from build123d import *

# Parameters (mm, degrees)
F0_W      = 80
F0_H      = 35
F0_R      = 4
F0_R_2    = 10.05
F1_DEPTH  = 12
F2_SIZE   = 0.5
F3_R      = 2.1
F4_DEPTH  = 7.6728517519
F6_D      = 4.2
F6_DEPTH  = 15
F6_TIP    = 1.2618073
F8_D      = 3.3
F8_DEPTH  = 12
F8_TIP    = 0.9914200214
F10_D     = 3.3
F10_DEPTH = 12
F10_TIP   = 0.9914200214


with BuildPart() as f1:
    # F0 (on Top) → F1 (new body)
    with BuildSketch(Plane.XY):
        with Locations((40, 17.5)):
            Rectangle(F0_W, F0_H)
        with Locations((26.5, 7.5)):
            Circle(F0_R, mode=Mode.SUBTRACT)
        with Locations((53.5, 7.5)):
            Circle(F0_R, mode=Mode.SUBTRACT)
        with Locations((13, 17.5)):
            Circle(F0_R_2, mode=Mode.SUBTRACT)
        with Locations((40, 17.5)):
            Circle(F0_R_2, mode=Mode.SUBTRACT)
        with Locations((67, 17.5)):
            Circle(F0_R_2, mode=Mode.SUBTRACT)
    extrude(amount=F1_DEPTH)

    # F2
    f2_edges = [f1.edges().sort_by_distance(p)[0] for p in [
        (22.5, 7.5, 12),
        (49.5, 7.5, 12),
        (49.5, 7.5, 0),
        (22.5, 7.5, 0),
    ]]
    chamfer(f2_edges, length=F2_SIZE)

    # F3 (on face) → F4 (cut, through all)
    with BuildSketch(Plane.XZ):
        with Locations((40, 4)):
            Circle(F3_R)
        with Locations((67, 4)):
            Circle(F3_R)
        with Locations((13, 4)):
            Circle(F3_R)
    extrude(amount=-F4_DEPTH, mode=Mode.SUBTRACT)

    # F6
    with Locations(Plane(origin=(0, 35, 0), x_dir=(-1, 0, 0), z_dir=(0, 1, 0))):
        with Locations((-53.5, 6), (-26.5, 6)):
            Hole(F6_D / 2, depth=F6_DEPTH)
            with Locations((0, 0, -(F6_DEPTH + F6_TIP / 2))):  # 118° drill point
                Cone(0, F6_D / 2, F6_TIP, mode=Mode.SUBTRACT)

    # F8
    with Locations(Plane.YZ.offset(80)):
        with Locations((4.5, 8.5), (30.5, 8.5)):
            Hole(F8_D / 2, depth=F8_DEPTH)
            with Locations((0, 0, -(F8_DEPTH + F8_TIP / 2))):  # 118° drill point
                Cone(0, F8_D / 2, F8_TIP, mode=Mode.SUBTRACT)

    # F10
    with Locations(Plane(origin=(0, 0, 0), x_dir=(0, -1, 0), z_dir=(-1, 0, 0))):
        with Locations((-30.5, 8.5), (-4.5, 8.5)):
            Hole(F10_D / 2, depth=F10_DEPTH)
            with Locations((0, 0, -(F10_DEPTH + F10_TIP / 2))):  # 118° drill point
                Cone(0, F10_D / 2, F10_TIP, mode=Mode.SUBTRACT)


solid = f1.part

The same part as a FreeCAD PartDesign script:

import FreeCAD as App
import Part
import Sketcher


def edges_at(feature, points):
    """Names of the edges that pass closest to the given points."""
    edges = feature.Shape.Edges
    near = lambda p: min(range(len(edges)), key=lambda i: edges[i].distToShape(Part.Vertex(*p))[0])
    return sorted({f"Edge{near(p) + 1}" for p in points})

doc = App.newDocument("Part")
body = doc.addObject("PartDesign::Body", "Body")

# Sketch on XY plane
sketch1 = doc.addObject("Sketcher::SketchObject", "Sketch")
body.addObject(sketch1)
sketch1.AttachmentSupport = (doc.XY_Plane, [""])
sketch1.MapMode = "FlatFace"
sketch1.addGeometry(Part.LineSegment(App.Vector(0, 35, 0), App.Vector(0, 0, 0)), False)
sketch1.addGeometry(Part.LineSegment(App.Vector(0, 0, 0), App.Vector(80, 0, 0)), False)
sketch1.addGeometry(Part.LineSegment(App.Vector(80, 0, 0), App.Vector(80, 35, 0)), False)
sketch1.addGeometry(Part.LineSegment(App.Vector(80, 35, 0), App.Vector(0, 35, 0)), False)
sketch1.addGeometry(Part.Circle(App.Vector(26.5, 7.5, 0), App.Vector(0, 0, 1), 4), False)
sketch1.addGeometry(Part.Circle(App.Vector(53.5, 7.5, 0), App.Vector(0, 0, 1), 4), False)
sketch1.addGeometry(Part.Circle(App.Vector(13, 17.5, 0), App.Vector(0, 0, 1), 10.1), False)
sketch1.addGeometry(Part.Circle(App.Vector(40, 17.5, 0), App.Vector(0, 0, 1), 10.1), False)
sketch1.addGeometry(Part.Circle(App.Vector(67, 17.5, 0), App.Vector(0, 0, 1), 10.1), False)
sketch1.addConstraint(Sketcher.Constraint("Coincident", 0, 2, 1, 1))
sketch1.addConstraint(Sketcher.Constraint("Coincident", 1, 2, 2, 1))
sketch1.addConstraint(Sketcher.Constraint("Coincident", 2, 2, 3, 1))
sketch1.addConstraint(Sketcher.Constraint("Coincident", 3, 2, 0, 1))
sketch1.addConstraint(Sketcher.Constraint("Vertical", 0))
sketch1.addConstraint(Sketcher.Constraint("Horizontal", 1))
sketch1.addConstraint(Sketcher.Constraint("Vertical", 2))
sketch1.addConstraint(Sketcher.Constraint("Horizontal", 3))
sketch1.addConstraint(Sketcher.Constraint("Coincident", 0, 2, -1, 1))
sketch1.addConstraint(Sketcher.Constraint("Equal", 4, 5))
sketch1.addConstraint(Sketcher.Constraint("Equal", 6, 7))
sketch1.addConstraint(Sketcher.Constraint("Equal", 7, 8))
sketch1.addConstraint(Sketcher.Constraint("Horizontal", 4, 3, 5, 3))
sketch1.addConstraint(Sketcher.Constraint("Horizontal", 6, 3, 7, 3))
sketch1.addConstraint(Sketcher.Constraint("Horizontal", 7, 3, 8, 3))
sketch1.addConstraint(Sketcher.Constraint("Diameter", 4, 8.0))
sketch1.addConstraint(Sketcher.Constraint("Diameter", 6, 20.1))
sketch1.addConstraint(Sketcher.Constraint("DistanceX", 1, 1, 1, 2, 80.0))
sketch1.addConstraint(Sketcher.Constraint("DistanceY", 0, 2, 0, 1, 35.0))
sketch1.addConstraint(Sketcher.Constraint("DistanceX", -1, 1, 6, 3, 13.0))
sketch1.addConstraint(Sketcher.Constraint("DistanceX", -1, 1, 7, 3, 40.0))
sketch1.addConstraint(Sketcher.Constraint("DistanceX", -1, 1, 8, 3, 67.0))
sketch1.addConstraint(Sketcher.Constraint("DistanceX", 4, 3, 5, 3, 27.0))
sketch1.addConstraint(Sketcher.Constraint("DistanceY", 4, 3, 6, 3, 10.0))
sketch1.addConstraint(Sketcher.Constraint("DistanceX", -1, 1, 4, 3, 26.5))
sketch1.addConstraint(Sketcher.Constraint("DistanceY", -1, 1, 4, 3, 7.5))
pad1 = doc.addObject("PartDesign::Pad", "Pad")
body.addObject(pad1)
pad1.Profile = sketch1
pad1.Length = 12
doc.recompute()

chamfer = doc.addObject("PartDesign::Chamfer", "Chamfer")
body.addObject(chamfer)
chamfer.Base = (pad1, edges_at(pad1, [
    (22.5, 7.5, 12),
    (49.5, 7.5, 12),
    (49.5, 7.5, 0),
    (22.5, 7.5, 0),
]))
chamfer.Size = 0.5

# Sketch on XZ plane
sketch2 = doc.addObject("Sketcher::SketchObject", "Sketch001")
body.addObject(sketch2)
sketch2.AttachmentSupport = (doc.XZ_Plane, [""])
sketch2.MapMode = "FlatFace"
sketch2.addGeometry(Part.Circle(App.Vector(40, 4, 0), App.Vector(0, 0, 1), 2.1), False)
sketch2.addGeometry(Part.Circle(App.Vector(67, 4, 0), App.Vector(0, 0, 1), 2.1), False)
sketch2.addGeometry(Part.Circle(App.Vector(13, 4, 0), App.Vector(0, 0, 1), 2.1), False)
sketch2.addConstraint(Sketcher.Constraint("Equal", 0, 1))
sketch2.addConstraint(Sketcher.Constraint("Equal", 1, 2))
sketch2.addConstraint(Sketcher.Constraint("Horizontal", 0, 3, 1, 3))
sketch2.addConstraint(Sketcher.Constraint("Horizontal", 1, 3, 2, 3))
sketch2.addConstraint(Sketcher.Constraint("Diameter", 0, 4.2))
sketch2.addConstraint(Sketcher.Constraint("DistanceX", -1, 1, 0, 3, 40.0))
sketch2.addConstraint(Sketcher.Constraint("DistanceY", -1, 1, 0, 3, 4.0))
sketch2.addConstraint(Sketcher.Constraint("DistanceX", -1, 1, 1, 3, 67.0))
sketch2.addConstraint(Sketcher.Constraint("DistanceX", -1, 1, 2, 3, 13.0))
pocket1 = doc.addObject("PartDesign::Pocket", "Pocket")
body.addObject(pocket1)
pocket1.Profile = sketch2
pocket1.Length = 7.672852

# Sketch on XZ plane
sketch3 = doc.addObject("Sketcher::SketchObject", "Sketch002")
body.addObject(sketch3)
sketch3.AttachmentSupport = (doc.XZ_Plane, [""])
sketch3.MapMode = "FlatFace"
sketch3.AttachmentOffset = App.Placement(App.Vector(0, 0, -35), App.Rotation())
sketch3.addGeometry(Part.Circle(App.Vector(53.5, 6, 0), App.Vector(0, 0, 1), 2.1), False)
sketch3.addGeometry(Part.Circle(App.Vector(26.5, 6, 0), App.Vector(0, 0, 1), 2.1), False)
sketch3.addConstraint(Sketcher.Constraint("Equal", 0, 1))
sketch3.addConstraint(Sketcher.Constraint("Horizontal", 0, 3, 1, 3))
sketch3.addConstraint(Sketcher.Constraint("Diameter", 0, 4.2))
sketch3.addConstraint(Sketcher.Constraint("DistanceY", -1, 1, 0, 3, 6.0))
sketch3.addConstraint(Sketcher.Constraint("DistanceX", 1, 3, 0, 3, 27.0))
sketch3.addConstraint(Sketcher.Constraint("DistanceX", -1, 1, 0, 3, 53.5))
doc.recompute()
hole = doc.addObject("PartDesign::Hole", "Hole")
body.addObject(hole)
hole.Profile = sketch3
hole.ThreadType = "None"
hole.Diameter = 4.2
hole.DepthType = "Dimension"
hole.Depth = 15
hole.DrillPoint = "Angled"
hole.DrillPointAngle = 118
hole.Reversed = True

# Sketch on YZ plane
sketch4 = doc.addObject("Sketcher::SketchObject", "Sketch003")
body.addObject(sketch4)
sketch4.AttachmentSupport = (doc.YZ_Plane, [""])
sketch4.MapMode = "FlatFace"
sketch4.AttachmentOffset = App.Placement(App.Vector(0, 0, 80), App.Rotation())
sketch4.addGeometry(Part.Circle(App.Vector(4.5, 8.5, 0), App.Vector(0, 0, 1), 1.6), False)
sketch4.addGeometry(Part.Circle(App.Vector(30.5, 8.5, 0), App.Vector(0, 0, 1), 1.6), False)
sketch4.addConstraint(Sketcher.Constraint("Equal", 0, 1))
sketch4.addConstraint(Sketcher.Constraint("Horizontal", 0, 3, 1, 3))
sketch4.addConstraint(Sketcher.Constraint("Diameter", 0, 3.3))
sketch4.addConstraint(Sketcher.Constraint("DistanceX", 0, 3, 1, 3, 26.0))
sketch4.addConstraint(Sketcher.Constraint("DistanceX", -1, 1, 0, 3, 4.5))
sketch4.addConstraint(Sketcher.Constraint("DistanceY", -1, 1, 0, 3, 8.5))
doc.recompute()
hole2 = doc.addObject("PartDesign::Hole", "Hole001")
body.addObject(hole2)
hole2.Profile = sketch4
hole2.ThreadType = "None"
hole2.Diameter = 3.3
hole2.DepthType = "Dimension"
hole2.Depth = 12
hole2.DrillPoint = "Angled"
hole2.DrillPointAngle = 118

# Sketch on YZ plane
sketch5 = doc.addObject("Sketcher::SketchObject", "Sketch004")
body.addObject(sketch5)
sketch5.AttachmentSupport = (doc.YZ_Plane, [""])
sketch5.MapMode = "FlatFace"
sketch5.addGeometry(Part.Circle(App.Vector(30.5, 8.5, 0), App.Vector(0, 0, 1), 1.6), False)
sketch5.addGeometry(Part.Circle(App.Vector(4.5, 8.5, 0), App.Vector(0, 0, 1), 1.6), False)
sketch5.addConstraint(Sketcher.Constraint("Equal", 0, 1))
sketch5.addConstraint(Sketcher.Constraint("Horizontal", 0, 3, 1, 3))
sketch5.addConstraint(Sketcher.Constraint("Diameter", 0, 3.3))
sketch5.addConstraint(Sketcher.Constraint("DistanceX", 1, 3, 0, 3, 26.0))
sketch5.addConstraint(Sketcher.Constraint("DistanceX", -1, 1, 0, 3, 30.5))
sketch5.addConstraint(Sketcher.Constraint("DistanceY", -1, 1, 0, 3, 8.5))
doc.recompute()
hole3 = doc.addObject("PartDesign::Hole", "Hole002")
body.addObject(hole3)
hole3.Profile = sketch5
hole3.ThreadType = "None"
hole3.Diameter = 3.3
hole3.DepthType = "Dimension"
hole3.Depth = 12
hole3.DrillPoint = "Angled"
hole3.DrillPointAngle = 118
hole3.Reversed = True

doc.recompute()
